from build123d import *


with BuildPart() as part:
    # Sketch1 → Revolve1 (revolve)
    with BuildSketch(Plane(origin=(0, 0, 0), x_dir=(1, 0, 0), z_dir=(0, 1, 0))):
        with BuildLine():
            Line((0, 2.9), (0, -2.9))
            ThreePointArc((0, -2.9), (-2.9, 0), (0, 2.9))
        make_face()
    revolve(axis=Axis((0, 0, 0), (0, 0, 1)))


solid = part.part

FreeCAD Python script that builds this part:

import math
import FreeCAD as App
import Part
import Sketcher
Q = App.Units.Quantity

doc = App.newDocument("Part")
body = doc.addObject("PartDesign::Body", "Body")

sketch1 = body.newObject("Sketcher::SketchObject", "Sketch")
sketch1.AttachmentSupport = (doc.getObject("XZ_Plane"), [""])
sketch1.MapMode = "FlatFace"
sketch1.addGeometry(Part.LineSegment(App.Vector(0, 2.9, 0), App.Vector(0, -2.9, 0)), False)
sketch1.addGeometry(Part.ArcOfCircle(Part.Circle(App.Vector(0, 0, 0), App.Vector(0, 0, 1), 2.9), math.radians(90), math.radians(270)), False)
sketch1.addConstraint(Sketcher.Constraint("Coincident", 0, 1, 1, 1))
sketch1.addConstraint(Sketcher.Constraint("Coincident", 1, 2, 0, 2))
sketch1.addConstraint(Sketcher.Constraint("Vertical", 0))
sketch1.addConstraint(Sketcher.Constraint("Coincident", 1, 3, -1, 1))
sketch1.addConstraint(Sketcher.Constraint("PointOnObject", 0, 1, -2))
sketch1.addConstraint(Sketcher.Constraint("Radius", 1, Q("2.9 mm")))
revolution = body.newObject("PartDesign::Revolution", "Revolution")
revolution.Profile = sketch1
revolution.ReferenceAxis = (sketch1, ["V_Axis"])
revolution.Angle = 360

doc.recompute()
